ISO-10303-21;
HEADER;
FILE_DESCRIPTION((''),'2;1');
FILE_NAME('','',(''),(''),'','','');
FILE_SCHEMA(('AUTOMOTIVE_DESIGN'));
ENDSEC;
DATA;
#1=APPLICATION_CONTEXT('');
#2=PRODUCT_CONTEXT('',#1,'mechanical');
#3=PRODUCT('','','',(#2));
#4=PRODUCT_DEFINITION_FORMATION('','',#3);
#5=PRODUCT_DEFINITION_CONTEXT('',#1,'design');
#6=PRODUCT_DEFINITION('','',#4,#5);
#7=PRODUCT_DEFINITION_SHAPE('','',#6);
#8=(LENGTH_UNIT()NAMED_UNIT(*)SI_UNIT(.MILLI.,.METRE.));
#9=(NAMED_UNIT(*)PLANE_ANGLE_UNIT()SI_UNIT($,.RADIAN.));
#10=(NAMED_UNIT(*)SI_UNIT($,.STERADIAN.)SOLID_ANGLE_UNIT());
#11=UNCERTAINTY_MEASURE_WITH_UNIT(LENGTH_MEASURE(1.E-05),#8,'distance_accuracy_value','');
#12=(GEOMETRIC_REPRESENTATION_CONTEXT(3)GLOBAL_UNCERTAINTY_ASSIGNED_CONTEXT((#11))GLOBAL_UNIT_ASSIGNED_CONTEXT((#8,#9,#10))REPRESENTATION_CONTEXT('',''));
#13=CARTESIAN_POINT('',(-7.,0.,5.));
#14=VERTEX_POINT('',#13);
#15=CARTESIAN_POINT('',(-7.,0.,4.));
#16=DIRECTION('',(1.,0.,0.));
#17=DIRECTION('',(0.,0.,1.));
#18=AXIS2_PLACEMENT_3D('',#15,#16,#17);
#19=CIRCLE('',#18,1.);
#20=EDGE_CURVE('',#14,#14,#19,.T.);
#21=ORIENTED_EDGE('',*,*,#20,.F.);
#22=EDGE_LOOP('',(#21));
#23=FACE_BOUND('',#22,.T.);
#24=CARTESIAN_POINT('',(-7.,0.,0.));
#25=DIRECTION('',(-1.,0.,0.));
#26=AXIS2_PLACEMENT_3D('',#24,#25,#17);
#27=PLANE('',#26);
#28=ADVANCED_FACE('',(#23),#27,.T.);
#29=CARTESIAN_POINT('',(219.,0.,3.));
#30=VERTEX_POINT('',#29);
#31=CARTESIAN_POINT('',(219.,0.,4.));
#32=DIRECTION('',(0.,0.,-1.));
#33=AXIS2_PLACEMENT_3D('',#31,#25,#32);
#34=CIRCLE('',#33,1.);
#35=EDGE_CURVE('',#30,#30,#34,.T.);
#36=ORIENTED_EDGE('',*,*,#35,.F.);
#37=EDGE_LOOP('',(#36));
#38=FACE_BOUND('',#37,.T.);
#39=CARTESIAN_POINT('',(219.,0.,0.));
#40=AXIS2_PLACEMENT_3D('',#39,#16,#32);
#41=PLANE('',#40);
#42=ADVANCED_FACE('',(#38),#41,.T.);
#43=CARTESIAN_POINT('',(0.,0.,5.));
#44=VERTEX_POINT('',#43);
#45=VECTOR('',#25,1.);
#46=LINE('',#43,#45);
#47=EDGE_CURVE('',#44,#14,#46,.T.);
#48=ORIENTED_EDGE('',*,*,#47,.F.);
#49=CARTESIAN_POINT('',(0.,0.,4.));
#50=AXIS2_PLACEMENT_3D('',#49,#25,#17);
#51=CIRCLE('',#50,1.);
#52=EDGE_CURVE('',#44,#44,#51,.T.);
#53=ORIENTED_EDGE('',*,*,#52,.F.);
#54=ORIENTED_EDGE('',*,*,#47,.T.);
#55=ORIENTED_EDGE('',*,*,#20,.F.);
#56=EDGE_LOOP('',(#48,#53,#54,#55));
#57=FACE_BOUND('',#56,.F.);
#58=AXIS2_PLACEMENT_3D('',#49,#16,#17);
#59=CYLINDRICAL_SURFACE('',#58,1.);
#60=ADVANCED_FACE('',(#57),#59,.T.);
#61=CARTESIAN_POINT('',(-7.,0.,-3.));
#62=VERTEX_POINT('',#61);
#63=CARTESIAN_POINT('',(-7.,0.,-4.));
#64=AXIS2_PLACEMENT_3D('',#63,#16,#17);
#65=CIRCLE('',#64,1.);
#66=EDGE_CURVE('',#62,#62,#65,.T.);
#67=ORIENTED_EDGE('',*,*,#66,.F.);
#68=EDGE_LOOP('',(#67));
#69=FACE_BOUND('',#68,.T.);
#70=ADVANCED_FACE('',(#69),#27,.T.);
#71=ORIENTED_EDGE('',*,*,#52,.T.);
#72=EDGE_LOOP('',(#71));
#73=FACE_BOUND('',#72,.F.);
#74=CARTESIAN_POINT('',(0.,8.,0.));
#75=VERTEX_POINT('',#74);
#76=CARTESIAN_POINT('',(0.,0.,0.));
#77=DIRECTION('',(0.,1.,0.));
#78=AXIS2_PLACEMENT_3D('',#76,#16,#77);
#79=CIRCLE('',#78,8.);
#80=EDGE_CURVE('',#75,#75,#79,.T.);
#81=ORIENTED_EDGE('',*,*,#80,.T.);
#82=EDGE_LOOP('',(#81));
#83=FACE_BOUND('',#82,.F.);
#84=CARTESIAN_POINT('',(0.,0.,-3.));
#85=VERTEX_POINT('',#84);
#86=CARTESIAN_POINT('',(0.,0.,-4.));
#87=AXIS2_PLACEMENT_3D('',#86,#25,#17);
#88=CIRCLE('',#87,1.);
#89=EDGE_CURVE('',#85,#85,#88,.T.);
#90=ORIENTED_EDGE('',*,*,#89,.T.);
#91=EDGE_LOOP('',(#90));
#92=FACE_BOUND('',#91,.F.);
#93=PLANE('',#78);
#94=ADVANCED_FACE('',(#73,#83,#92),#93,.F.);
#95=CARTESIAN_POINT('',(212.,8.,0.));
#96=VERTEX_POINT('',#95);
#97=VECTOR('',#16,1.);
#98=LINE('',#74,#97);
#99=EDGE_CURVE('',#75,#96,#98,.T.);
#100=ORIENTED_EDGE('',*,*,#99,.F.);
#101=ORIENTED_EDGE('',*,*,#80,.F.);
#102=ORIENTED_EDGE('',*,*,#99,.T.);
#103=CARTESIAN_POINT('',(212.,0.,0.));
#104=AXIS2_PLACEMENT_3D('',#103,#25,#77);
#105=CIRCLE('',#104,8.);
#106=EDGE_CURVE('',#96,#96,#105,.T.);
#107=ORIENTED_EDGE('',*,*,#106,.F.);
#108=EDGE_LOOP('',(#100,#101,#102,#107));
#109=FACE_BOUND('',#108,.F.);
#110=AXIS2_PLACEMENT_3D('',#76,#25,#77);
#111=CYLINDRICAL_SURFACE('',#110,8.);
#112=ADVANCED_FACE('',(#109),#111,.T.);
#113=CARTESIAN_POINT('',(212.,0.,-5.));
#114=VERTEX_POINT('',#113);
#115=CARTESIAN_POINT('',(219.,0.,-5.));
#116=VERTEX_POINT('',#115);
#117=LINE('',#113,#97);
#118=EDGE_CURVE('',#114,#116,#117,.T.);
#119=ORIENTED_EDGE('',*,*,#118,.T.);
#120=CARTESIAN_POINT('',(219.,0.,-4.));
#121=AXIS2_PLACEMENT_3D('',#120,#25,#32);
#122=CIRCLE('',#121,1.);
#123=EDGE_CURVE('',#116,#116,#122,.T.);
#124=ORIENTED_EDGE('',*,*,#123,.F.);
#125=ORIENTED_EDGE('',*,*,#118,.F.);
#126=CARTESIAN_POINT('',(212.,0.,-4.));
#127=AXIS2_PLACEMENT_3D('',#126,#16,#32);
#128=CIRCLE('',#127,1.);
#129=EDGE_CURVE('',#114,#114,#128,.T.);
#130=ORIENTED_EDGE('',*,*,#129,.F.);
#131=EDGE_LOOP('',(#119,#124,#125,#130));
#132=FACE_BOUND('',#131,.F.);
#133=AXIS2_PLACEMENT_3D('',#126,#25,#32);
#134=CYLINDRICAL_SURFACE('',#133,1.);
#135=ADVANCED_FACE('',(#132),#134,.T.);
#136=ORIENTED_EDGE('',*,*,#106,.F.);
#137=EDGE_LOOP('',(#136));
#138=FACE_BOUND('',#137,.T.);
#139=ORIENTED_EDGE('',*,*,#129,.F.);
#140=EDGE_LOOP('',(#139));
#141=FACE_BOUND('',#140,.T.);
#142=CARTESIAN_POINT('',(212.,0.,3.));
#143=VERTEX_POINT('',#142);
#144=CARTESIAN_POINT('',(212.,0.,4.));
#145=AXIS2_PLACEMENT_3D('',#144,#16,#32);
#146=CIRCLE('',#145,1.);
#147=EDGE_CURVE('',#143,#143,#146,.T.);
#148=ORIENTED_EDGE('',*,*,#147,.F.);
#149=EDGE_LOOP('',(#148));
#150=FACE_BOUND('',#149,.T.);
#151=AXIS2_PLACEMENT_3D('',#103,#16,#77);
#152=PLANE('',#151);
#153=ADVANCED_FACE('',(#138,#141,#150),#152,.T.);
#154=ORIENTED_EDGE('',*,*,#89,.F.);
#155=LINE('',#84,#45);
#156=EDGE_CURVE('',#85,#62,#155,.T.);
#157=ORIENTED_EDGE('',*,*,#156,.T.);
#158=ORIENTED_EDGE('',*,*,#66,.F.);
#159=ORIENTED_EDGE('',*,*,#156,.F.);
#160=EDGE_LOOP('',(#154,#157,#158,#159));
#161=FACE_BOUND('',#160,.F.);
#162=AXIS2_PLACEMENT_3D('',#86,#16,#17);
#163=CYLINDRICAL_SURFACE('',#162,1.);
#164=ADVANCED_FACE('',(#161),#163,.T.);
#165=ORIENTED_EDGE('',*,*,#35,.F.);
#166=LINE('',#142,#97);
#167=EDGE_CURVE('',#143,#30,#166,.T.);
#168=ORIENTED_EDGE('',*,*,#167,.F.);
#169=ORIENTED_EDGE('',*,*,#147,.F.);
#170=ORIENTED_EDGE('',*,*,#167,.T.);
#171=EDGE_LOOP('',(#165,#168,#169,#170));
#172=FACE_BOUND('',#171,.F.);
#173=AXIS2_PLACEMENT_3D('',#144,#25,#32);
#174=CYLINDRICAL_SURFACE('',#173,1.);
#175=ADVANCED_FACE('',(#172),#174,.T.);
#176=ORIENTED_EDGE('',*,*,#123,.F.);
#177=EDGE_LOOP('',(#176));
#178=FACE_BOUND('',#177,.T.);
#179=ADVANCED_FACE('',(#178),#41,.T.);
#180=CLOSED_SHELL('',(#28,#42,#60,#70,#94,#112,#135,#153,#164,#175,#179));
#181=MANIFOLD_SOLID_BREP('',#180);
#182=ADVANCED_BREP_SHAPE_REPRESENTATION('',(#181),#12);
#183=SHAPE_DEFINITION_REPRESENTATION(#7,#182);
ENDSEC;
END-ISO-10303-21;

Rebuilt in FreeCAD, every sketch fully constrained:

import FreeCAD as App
import Part
import Sketcher
from FreeCAD import Vector
Q = App.Units.Quantity

doc = App.newDocument("Part")
body = doc.addObject("PartDesign::Body", "Body")

# Sketch on YZ plane
sketch1 = body.newObject("Sketcher::SketchObject", "Sketch")
sketch1.AttachmentSupport = (doc.getObject("YZ_Plane"), [""])
sketch1.MapMode = "FlatFace"
sketch1.addGeometry(Part.Circle(Vector(0, 0, 0), Vector(0, 0, 1), 8), False)
sketch1.addConstraint([
    Sketcher.Constraint("Coincident", 0, 3, -1, 1),
    Sketcher.Constraint("Diameter", 0, Q("16 mm")),
])
pad1 = body.newObject("PartDesign::Pad", "Pad")
pad1.Profile = sketch1
pad1.Length = 212

# Sketch on YZ plane
sketch2 = body.newObject("Sketcher::SketchObject", "Sketch001")
sketch2.AttachmentSupport = (doc.getObject("YZ_Plane"), [""])
sketch2.MapMode = "FlatFace"
sketch2.AttachmentOffset = App.Placement(Vector(0, 0, 212), App.Rotation())
sketch2.addGeometry([
    Part.Circle(Vector(0, -4, 0), Vector(0, 0, 1), 1),
    Part.Circle(Vector(0, 4, 0), Vector(0, 0, 1), 1),
], False)
sketch2.addConstraint([
    Sketcher.Constraint("Equal", 0, 1),
    Sketcher.Constraint("Symmetric", 0, 3, 1, 3, -1, 1),
    Sketcher.Constraint("PointOnObject", 0, 3, -2),
    Sketcher.Constraint("Diameter", 0, Q("2 mm")),
    Sketcher.Constraint("DistanceY", 0, 3, 1, 3, Q("8 mm")),
])
pad2 = body.newObject("PartDesign::Pad", "Pad001")
pad2.Profile = sketch2
pad2.Length = 7

# Sketch on YZ plane
sketch3 = body.newObject("Sketcher::SketchObject", "Sketch002")
sketch3.AttachmentSupport = (doc.getObject("YZ_Plane"), [""])
sketch3.MapMode = "FlatFace"
sketch3.addGeometry([
    Part.Circle(Vector(0, 4, 0), Vector(0, 0, 1), 1),
    Part.Circle(Vector(0, -4, 0), Vector(0, 0, 1), 1),
], False)
sketch3.addConstraint([
    Sketcher.Constraint("Equal", 0, 1),
    Sketcher.Constraint("Symmetric", 0, 3, 1, 3, -1, 1),
    Sketcher.Constraint("PointOnObject", 0, 3, -2),
    Sketcher.Constraint("Diameter", 0, Q("2 mm")),
    Sketcher.Constraint("DistanceY", 1, 3, 0, 3, Q("8 mm")),
])
pad3 = body.newObject("PartDesign::Pad", "Pad002")
pad3.Profile = sketch3
pad3.Length = 7
pad3.Reversed = True

doc.recompute()
